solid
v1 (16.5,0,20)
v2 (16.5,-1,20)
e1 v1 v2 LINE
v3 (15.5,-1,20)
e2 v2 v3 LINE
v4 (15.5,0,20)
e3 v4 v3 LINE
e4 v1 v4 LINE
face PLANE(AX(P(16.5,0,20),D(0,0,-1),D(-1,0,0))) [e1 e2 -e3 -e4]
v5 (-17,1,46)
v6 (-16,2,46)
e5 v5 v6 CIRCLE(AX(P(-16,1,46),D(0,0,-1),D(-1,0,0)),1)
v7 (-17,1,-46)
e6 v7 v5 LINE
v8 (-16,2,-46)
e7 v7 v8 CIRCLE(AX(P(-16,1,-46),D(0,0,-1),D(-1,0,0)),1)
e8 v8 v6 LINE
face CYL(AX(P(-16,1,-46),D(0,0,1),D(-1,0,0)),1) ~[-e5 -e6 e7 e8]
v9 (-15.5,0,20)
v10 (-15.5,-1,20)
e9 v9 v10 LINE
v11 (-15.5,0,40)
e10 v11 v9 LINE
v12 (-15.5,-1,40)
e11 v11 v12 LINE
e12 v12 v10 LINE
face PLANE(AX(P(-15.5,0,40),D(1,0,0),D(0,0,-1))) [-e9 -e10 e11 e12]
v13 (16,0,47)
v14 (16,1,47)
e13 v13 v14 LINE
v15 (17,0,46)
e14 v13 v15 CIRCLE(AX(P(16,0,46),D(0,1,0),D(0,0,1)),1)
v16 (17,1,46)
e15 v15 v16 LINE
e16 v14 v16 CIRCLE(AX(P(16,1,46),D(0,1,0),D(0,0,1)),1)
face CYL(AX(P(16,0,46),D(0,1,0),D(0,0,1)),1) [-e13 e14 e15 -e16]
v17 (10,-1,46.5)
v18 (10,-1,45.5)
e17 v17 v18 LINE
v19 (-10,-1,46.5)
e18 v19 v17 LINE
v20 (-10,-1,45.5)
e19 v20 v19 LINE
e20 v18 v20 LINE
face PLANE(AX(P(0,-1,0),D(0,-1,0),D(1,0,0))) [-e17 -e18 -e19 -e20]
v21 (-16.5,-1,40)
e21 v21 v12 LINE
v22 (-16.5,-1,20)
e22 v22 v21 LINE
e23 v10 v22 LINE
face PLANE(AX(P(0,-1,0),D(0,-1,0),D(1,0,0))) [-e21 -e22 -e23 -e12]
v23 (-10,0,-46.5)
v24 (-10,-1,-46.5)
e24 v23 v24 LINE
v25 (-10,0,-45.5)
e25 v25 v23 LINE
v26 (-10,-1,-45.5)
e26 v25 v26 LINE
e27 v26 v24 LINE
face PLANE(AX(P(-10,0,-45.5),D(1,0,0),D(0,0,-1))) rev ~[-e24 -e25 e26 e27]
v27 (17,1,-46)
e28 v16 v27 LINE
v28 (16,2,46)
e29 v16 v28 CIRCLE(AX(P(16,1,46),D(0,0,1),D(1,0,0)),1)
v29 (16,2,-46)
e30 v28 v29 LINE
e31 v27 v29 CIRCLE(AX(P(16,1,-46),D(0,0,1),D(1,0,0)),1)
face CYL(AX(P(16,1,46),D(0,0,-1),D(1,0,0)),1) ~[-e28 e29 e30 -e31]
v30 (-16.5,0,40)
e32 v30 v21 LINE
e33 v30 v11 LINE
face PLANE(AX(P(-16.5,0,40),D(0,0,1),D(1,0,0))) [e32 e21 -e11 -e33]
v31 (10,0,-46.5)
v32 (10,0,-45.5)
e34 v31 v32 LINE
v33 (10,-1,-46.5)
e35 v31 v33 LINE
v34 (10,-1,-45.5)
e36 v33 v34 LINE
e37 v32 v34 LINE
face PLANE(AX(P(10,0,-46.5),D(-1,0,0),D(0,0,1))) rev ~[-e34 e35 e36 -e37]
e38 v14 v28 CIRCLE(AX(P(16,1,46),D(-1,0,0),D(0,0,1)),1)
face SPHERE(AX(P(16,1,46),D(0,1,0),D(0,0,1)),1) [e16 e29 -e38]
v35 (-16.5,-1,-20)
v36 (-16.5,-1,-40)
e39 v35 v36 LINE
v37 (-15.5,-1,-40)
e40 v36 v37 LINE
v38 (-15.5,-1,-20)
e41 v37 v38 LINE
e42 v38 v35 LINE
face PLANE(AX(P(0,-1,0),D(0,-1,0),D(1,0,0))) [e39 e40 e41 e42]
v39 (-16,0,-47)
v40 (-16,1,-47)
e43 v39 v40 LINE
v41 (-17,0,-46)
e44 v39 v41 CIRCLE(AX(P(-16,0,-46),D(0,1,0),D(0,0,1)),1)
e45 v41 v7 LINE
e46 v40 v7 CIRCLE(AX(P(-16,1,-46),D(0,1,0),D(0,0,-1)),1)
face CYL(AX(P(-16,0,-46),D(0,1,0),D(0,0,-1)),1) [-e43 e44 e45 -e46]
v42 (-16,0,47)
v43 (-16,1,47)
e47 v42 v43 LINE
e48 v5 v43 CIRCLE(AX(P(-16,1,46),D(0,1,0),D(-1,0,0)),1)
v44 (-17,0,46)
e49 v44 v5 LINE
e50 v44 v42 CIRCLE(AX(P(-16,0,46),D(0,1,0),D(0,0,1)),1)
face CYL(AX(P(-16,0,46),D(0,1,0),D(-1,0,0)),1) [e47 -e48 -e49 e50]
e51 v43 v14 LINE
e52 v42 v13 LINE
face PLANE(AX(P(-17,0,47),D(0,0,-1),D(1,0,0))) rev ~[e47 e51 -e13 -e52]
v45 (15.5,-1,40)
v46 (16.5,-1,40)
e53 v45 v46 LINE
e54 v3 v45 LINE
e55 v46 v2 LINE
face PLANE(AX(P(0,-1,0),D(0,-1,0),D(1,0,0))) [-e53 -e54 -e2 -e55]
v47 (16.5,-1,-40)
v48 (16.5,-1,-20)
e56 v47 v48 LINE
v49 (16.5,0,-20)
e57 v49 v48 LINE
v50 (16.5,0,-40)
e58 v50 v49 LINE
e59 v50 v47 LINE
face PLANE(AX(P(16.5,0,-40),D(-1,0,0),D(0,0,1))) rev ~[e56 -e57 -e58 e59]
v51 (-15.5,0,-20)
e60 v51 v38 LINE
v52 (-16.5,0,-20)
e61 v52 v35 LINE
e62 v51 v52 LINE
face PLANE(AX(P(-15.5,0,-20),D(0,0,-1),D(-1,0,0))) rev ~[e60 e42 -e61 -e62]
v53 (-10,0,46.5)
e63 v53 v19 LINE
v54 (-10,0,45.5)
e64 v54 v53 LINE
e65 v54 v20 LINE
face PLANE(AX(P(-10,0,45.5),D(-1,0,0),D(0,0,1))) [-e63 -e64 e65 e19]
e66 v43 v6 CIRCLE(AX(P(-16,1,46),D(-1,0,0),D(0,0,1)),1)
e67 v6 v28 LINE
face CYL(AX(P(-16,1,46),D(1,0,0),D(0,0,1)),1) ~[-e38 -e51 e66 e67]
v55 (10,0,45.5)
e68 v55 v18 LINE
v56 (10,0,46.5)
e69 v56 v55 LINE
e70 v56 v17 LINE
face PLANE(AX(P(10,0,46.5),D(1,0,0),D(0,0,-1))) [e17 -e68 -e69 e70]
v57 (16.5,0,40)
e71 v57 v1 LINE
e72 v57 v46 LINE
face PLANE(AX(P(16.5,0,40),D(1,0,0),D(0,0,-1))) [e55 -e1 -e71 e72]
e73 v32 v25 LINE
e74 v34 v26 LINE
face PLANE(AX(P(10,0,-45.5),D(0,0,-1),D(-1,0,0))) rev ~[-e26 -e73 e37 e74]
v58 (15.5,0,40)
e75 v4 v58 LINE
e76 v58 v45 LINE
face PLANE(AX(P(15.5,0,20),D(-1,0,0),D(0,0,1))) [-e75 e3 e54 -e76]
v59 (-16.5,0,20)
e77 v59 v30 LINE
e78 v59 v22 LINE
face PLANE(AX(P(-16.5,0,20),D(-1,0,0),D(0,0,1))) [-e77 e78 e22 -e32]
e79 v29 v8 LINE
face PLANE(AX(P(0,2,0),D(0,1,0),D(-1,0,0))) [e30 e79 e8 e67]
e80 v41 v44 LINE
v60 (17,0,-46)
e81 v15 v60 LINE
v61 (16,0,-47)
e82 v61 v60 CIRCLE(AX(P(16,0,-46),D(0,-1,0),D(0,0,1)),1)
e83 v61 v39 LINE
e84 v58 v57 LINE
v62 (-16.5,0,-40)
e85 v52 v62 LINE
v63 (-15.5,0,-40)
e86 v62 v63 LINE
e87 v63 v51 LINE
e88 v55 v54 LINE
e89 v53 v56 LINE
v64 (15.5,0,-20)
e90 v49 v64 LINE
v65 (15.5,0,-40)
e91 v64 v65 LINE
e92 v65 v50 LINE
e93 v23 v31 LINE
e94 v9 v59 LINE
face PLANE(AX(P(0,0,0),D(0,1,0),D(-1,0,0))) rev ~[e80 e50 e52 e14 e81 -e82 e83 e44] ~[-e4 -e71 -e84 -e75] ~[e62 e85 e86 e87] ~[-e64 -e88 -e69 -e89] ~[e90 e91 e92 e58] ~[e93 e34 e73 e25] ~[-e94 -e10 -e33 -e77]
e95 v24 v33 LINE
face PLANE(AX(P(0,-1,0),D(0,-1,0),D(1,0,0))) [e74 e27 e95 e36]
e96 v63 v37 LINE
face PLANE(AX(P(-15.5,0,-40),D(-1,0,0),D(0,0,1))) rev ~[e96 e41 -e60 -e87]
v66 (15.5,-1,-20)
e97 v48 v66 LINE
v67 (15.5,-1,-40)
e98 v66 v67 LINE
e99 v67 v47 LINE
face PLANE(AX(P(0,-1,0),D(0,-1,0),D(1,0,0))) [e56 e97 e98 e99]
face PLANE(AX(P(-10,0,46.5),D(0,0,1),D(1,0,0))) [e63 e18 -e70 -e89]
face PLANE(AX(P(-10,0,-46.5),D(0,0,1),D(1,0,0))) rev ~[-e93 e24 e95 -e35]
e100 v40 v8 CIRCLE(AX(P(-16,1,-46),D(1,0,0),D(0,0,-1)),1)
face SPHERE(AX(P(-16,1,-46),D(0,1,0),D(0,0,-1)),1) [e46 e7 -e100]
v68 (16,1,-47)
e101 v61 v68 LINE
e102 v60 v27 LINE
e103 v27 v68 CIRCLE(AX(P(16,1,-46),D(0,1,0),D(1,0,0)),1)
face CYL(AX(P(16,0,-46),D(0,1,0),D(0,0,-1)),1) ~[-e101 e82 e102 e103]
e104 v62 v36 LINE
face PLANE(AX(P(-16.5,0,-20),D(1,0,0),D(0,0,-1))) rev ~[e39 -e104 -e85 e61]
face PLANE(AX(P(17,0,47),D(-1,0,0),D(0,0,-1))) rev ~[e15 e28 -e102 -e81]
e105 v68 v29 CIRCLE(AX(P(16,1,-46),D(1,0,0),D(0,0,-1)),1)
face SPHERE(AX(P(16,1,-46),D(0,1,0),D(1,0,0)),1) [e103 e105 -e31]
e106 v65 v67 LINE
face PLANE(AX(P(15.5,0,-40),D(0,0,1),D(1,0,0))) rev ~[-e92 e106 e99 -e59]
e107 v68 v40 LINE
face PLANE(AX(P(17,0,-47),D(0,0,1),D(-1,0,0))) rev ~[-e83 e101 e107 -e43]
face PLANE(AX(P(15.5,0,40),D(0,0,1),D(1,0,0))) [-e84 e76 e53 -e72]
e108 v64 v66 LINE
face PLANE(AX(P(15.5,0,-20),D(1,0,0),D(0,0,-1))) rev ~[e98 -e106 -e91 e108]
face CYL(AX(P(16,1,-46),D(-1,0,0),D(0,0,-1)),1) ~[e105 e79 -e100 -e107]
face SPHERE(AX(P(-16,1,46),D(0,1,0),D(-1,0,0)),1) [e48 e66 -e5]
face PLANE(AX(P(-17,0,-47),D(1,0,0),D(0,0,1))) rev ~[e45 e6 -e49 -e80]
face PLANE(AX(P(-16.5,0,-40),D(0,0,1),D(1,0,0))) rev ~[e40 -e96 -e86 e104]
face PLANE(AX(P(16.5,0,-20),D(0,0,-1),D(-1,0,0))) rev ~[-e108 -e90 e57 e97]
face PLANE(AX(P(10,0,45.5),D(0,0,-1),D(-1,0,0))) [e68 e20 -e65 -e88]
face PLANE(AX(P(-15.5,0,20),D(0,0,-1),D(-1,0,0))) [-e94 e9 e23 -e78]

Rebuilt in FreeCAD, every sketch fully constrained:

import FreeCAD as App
import Part
import Sketcher


def edges_at(feature, points):
    """Names of the edges that pass closest to the given points."""
    edges = feature.Shape.Edges
    near = lambda p: min(range(len(edges)), key=lambda i: edges[i].distToShape(Part.Vertex(*p))[0])
    return sorted({f"Edge{near(p) + 1}" for p in points})


def add_polygon(sketch, points):
    """Adds a closed chain of lines whose ends are joined by coincident constraints."""
    first, n = sketch.GeometryCount, len(points)
    for a, b in zip(points, points[1:] + points[:1]):
        sketch.addGeometry(Part.LineSegment(App.Vector(*a, 0), App.Vector(*b, 0)), False)
    for i in range(n):
        sketch.addConstraint(Sketcher.Constraint("Coincident", first + i, 2, first + (i + 1) % n, 1))

doc = App.newDocument("Part")
body = doc.addObject("PartDesign::Body", "Body")

# Sketch on XZ plane
sketch1 = body.newObject("Sketcher::SketchObject", "Sketch")
sketch1.AttachmentSupport = (doc.getObject("XZ_Plane"), [""])
sketch1.MapMode = "FlatFace"
add_polygon(sketch1, [(-17, -47), (-17, 47), (17, 47), (17, -47)])  # lines 0-3
sketch1.addConstraint([
    Sketcher.Constraint("Vertical", 0),
    Sketcher.Constraint("Horizontal", 1),
    Sketcher.Constraint("Vertical", 2),
    Sketcher.Constraint("Horizontal", 3),
    Sketcher.Constraint("Symmetric", 0, 2, 2, 2, -1, 1),
    Sketcher.Constraint("DistanceX", 1, 1, 1, 2, 34.0),
    Sketcher.Constraint("DistanceY", 0, 1, 0, 2, 94.0),
])
pad1 = body.newObject("PartDesign::Pad", "Pad")
pad1.Profile = sketch1
pad1.Length = 2
pad1.Reversed = True

# Sketch on XZ plane
sketch2 = body.newObject("Sketcher::SketchObject", "Sketch001")
sketch2.AttachmentSupport = (doc.getObject("XZ_Plane"), [""])
sketch2.MapMode = "FlatFace"
add_polygon(sketch2, [(-16.5, -20), (-16.5, -40), (-15.5, -40), (-15.5, -20)])  # lines 0-3
add_polygon(sketch2, [(-16.5, 20), (-15.5, 20), (-15.5, 40), (-16.5, 40)])  # lines 4-7
add_polygon(sketch2, [(10, 46.5), (-10, 46.5), (-10, 45.5), (10, 45.5)])  # lines 8-11
add_polygon(sketch2, [(16.5, 40), (15.5, 40), (15.5, 20), (16.5, 20)])  # lines 12-15
add_polygon(sketch2, [(15.5, -20), (15.5, -40), (16.5, -40), (16.5, -20)])  # lines 16-19
add_polygon(sketch2, [(10, -46.5), (10, -45.5), (-10, -45.5), (-10, -46.5)])  # lines 20-23
sketch2.addConstraint([
    Sketcher.Constraint("Vertical", 0),
    Sketcher.Constraint("Horizontal", 1),
    Sketcher.Constraint("Vertical", 2),
    Sketcher.Constraint("Horizontal", 3),
    Sketcher.Constraint("Horizontal", 4),
    Sketcher.Constraint("Vertical", 5),
    Sketcher.Constraint("Horizontal", 6),
    Sketcher.Constraint("Vertical", 7),
    Sketcher.Constraint("Horizontal", 8),
    Sketcher.Constraint("Vertical", 9),
    Sketcher.Constraint("Horizontal", 10),
    Sketcher.Constraint("Vertical", 11),
    Sketcher.Constraint("Horizontal", 12),
    Sketcher.Constraint("Vertical", 13),
    Sketcher.Constraint("Horizontal", 14),
    Sketcher.Constraint("Vertical", 15),
    Sketcher.Constraint("Vertical", 16),
    Sketcher.Constraint("Horizontal", 17),
    Sketcher.Constraint("Vertical", 18),
    Sketcher.Constraint("Horizontal", 19),
    Sketcher.Constraint("Vertical", 20),
    Sketcher.Constraint("Horizontal", 21),
    Sketcher.Constraint("Vertical", 22),
    Sketcher.Constraint("Horizontal", 23),
    Sketcher.Constraint("Symmetric", 1, 2, 12, 2, -1, 1),
    Sketcher.Constraint("Symmetric", 3, 2, 14, 2, -1, 1),
    Sketcher.Constraint("Symmetric", 5, 2, 16, 2, -1, 1),
    Sketcher.Constraint("Symmetric", 7, 2, 18, 2, -1, 1),
    Sketcher.Constraint("Symmetric", 9, 2, 20, 2, -1, 1),
    Sketcher.Constraint("Symmetric", 11, 2, 22, 2, -1, 1),
    Sketcher.Constraint("Symmetric", 5, 2, 12, 2, -2),
    Sketcher.Constraint("Symmetric", 7, 2, 14, 2, -2),
    Sketcher.Constraint("Vertical", 11, 2, 20, 2),
    Sketcher.Constraint("Equal", 23, 0),
    Sketcher.Constraint("Equal", 19, 9),
    Sketcher.Constraint("DistanceX", 1, 1, 1, 2, 1.0),
    Sketcher.Constraint("DistanceX", 8, 2, 8, 1, 20.0),
    Sketcher.Constraint("DistanceY", 2, 2, -1, 1, 20.0),
    Sketcher.Constraint("DistanceX", 5, 2, 12, 2, 31.0),
    Sketcher.Constraint("DistanceY", -1, 1, 8, 2, 46.5),
])
pad2 = body.newObject("PartDesign::Pad", "Pad001")
pad2.Profile = sketch2
pad2.Length = 1
doc.recompute()

fillet = body.newObject("PartDesign::Fillet", "Fillet")
fillet.Base = (pad2, edges_at(pad2, [(17, 1, -47)]))
fillet.Radius = 1
doc.recompute()

fillet2 = body.newObject("PartDesign::Fillet", "Fillet001")
fillet2.Base = (fillet, edges_at(fillet, [(-17, 1, -47)]))
fillet2.Radius = 1
doc.recompute()

fillet3 = body.newObject("PartDesign::Fillet", "Fillet002")
fillet3.Base = (fillet2, edges_at(fillet2, [(-17, 1, 47)]))
fillet3.Radius = 1
doc.recompute()

fillet4 = body.newObject("PartDesign::Fillet", "Fillet003")
fillet4.Base = (fillet3, edges_at(fillet3, [(17, 1, 47)]))
fillet4.Radius = 1
doc.recompute()

fillet5 = body.newObject("PartDesign::Fillet", "Fillet004")
fillet5.Base = (fillet4, edges_at(fillet4, [
    (-16.707, 2, -46.707),
    (-17, 2, 0),
    (-16.707, 2, 46.707),
    (0, 2, 47),
    (16.707, 2, 46.707),
    (17, 2, 0),
    (16.707, 2, -46.707),
    (0, 2, -47),
]))
fillet5.Radius = 1

doc.recompute()
